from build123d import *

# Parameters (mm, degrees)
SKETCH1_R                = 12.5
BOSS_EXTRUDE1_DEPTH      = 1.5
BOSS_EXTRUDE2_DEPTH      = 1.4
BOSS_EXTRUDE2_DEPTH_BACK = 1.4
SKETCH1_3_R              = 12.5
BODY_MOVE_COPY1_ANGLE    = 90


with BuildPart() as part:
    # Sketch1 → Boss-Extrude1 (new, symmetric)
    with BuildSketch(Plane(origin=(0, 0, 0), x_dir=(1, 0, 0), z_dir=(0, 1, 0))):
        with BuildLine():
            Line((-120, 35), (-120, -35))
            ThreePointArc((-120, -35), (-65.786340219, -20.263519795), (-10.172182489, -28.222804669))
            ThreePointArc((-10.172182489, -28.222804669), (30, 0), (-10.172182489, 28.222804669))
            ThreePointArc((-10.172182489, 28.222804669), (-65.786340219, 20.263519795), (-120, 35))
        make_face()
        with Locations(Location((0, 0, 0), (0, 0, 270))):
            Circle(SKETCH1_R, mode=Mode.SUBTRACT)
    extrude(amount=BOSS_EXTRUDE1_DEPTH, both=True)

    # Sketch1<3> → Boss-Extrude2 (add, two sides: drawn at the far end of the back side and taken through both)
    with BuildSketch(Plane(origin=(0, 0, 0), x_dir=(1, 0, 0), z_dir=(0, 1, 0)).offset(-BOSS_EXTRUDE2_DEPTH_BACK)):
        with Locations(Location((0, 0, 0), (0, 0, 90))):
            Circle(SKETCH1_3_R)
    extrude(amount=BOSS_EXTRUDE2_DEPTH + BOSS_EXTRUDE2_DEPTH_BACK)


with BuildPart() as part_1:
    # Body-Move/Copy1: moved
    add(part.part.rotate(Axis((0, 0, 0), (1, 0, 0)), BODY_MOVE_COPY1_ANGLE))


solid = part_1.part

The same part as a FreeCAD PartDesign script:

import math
import FreeCAD as App
import Part
import Sketcher
Q = App.Units.Quantity

doc = App.newDocument("Part")
params = doc.addObject("Spreadsheet::Sheet", "Params")
for row, (alias, value) in enumerate([
    ("sketch1_diameter", "25 mm"),
    ("sketch1_radius", "30 mm"),
    ("sketch1_height", "70 mm"),
    ("pad1_length", "3 mm"),
    ("sketch2_diameter", "25 mm"),
    ("pad2_length", "1.4 mm"),
    ("pad2_length2", "1.4 mm"),
], start=1):
    params.set(f"A{row}", alias)
    params.set(f"B{row}", "=" + value)
    params.setAlias(f"B{row}", alias)

body = doc.addObject("PartDesign::Body", "Body")

# Sketch on XZ plane
sketch1 = doc.addObject("Sketcher::SketchObject", "Sketch")
body.addObject(sketch1)
sketch1.AttachmentSupport = (doc.XZ_Plane, [""])
sketch1.MapMode = "FlatFace"
sketch1.addGeometry([
    Part.LineSegment(App.Vector(-120, -35, 0), App.Vector(-120, 35, 0)),  # 0
    Part.ArcOfCircle(Part.Circle(App.Vector(-57, 159, 0), App.Vector(0, 0, 1), 139), math.radians(-117), math.radians(-70)),  # 1
    Part.ArcOfCircle(Part.Circle(App.Vector(0, 0, 0), App.Vector(0, 0, 1), 30), math.radians(-110), math.radians(110)),  # 2
    Part.ArcOfCircle(Part.Circle(App.Vector(-57, -159, 0), App.Vector(0, 0, 1), 139), math.radians(70), math.radians(117)),  # 3
    Part.Circle(App.Vector(0, 0, 0), App.Vector(0, 0, 1), 12),  # 4
], False)
sketch1.addConstraint([
    Sketcher.Constraint("Coincident", 0, 2, 1, 1),
    Sketcher.Constraint("Tangent", 1, 2, 2, 2),
    Sketcher.Constraint("Tangent", 2, 1, 3, 1),
    Sketcher.Constraint("Coincident", 3, 2, 0, 1),
    Sketcher.Constraint("Vertical", 0),
    Sketcher.Constraint("Coincident", 2, 3, -1, 1),
    Sketcher.Constraint("Coincident", 4, 3, -1, 1),
    Sketcher.Constraint("Equal", 1, 3),
    Sketcher.Constraint("Vertical", 1, 3, 3, 3),
    Sketcher.Constraint("Diameter", 4, Q("25 mm")),
    Sketcher.Constraint("Radius", 2, Q("30 mm")),
    Sketcher.Constraint("DistanceY", 0, 1, 0, 2, Q("70 mm")),
    Sketcher.Constraint("DistanceX", 0, 2, -1, 1, Q("120 mm")),
    Sketcher.Constraint("Radius", 1, Q("138.805305 mm")),
])
sketch1.setExpression("Constraints[9]", "Params.sketch1_diameter")
sketch1.setExpression("Constraints[10]", "Params.sketch1_radius")
sketch1.setExpression("Constraints[11]", "Params.sketch1_height")
pad1 = doc.addObject("PartDesign::Pad", "Pad")
body.addObject(pad1)
pad1.Profile = sketch1
pad1.setExpression("Length", "Params.pad1_length")
pad1.Midplane = True

# Sketch on XZ plane
sketch2 = doc.addObject("Sketcher::SketchObject", "Sketch001")
body.addObject(sketch2)
sketch2.AttachmentSupport = (doc.XZ_Plane, [""])
sketch2.MapMode = "FlatFace"
sketch2.addGeometry(Part.Circle(App.Vector(0, 0, 0), App.Vector(0, 0, 1), 12), False)
sketch2.addConstraint([
    Sketcher.Constraint("Coincident", 0, 3, -1, 1),
    Sketcher.Constraint("Diameter", 0, Q("25 mm")),
])
sketch2.setExpression("Constraints[1]", "Params.sketch2_diameter")
pad2 = doc.addObject("PartDesign::Pad", "Pad001")
body.addObject(pad2)
pad2.Profile = sketch2
pad2.Type = "TwoLengths"
pad2.setExpression("Length", "Params.pad2_length")
pad2.setExpression("Length2", "Params.pad2_length2")
pad2.Reversed = True
body2 = doc.addObject("PartDesign::Body", "Body001")
doc.recompute()

body.Placement = App.Placement(App.Vector(0, 0, 0), App.Rotation(App.Vector(1, 0, 0), 90))
boolean = doc.addObject("PartDesign::Boolean", "Boolean")
body2.addObject(boolean)
boolean.Type = "Fuse"
boolean.addObjects([body])

doc.recompute()
